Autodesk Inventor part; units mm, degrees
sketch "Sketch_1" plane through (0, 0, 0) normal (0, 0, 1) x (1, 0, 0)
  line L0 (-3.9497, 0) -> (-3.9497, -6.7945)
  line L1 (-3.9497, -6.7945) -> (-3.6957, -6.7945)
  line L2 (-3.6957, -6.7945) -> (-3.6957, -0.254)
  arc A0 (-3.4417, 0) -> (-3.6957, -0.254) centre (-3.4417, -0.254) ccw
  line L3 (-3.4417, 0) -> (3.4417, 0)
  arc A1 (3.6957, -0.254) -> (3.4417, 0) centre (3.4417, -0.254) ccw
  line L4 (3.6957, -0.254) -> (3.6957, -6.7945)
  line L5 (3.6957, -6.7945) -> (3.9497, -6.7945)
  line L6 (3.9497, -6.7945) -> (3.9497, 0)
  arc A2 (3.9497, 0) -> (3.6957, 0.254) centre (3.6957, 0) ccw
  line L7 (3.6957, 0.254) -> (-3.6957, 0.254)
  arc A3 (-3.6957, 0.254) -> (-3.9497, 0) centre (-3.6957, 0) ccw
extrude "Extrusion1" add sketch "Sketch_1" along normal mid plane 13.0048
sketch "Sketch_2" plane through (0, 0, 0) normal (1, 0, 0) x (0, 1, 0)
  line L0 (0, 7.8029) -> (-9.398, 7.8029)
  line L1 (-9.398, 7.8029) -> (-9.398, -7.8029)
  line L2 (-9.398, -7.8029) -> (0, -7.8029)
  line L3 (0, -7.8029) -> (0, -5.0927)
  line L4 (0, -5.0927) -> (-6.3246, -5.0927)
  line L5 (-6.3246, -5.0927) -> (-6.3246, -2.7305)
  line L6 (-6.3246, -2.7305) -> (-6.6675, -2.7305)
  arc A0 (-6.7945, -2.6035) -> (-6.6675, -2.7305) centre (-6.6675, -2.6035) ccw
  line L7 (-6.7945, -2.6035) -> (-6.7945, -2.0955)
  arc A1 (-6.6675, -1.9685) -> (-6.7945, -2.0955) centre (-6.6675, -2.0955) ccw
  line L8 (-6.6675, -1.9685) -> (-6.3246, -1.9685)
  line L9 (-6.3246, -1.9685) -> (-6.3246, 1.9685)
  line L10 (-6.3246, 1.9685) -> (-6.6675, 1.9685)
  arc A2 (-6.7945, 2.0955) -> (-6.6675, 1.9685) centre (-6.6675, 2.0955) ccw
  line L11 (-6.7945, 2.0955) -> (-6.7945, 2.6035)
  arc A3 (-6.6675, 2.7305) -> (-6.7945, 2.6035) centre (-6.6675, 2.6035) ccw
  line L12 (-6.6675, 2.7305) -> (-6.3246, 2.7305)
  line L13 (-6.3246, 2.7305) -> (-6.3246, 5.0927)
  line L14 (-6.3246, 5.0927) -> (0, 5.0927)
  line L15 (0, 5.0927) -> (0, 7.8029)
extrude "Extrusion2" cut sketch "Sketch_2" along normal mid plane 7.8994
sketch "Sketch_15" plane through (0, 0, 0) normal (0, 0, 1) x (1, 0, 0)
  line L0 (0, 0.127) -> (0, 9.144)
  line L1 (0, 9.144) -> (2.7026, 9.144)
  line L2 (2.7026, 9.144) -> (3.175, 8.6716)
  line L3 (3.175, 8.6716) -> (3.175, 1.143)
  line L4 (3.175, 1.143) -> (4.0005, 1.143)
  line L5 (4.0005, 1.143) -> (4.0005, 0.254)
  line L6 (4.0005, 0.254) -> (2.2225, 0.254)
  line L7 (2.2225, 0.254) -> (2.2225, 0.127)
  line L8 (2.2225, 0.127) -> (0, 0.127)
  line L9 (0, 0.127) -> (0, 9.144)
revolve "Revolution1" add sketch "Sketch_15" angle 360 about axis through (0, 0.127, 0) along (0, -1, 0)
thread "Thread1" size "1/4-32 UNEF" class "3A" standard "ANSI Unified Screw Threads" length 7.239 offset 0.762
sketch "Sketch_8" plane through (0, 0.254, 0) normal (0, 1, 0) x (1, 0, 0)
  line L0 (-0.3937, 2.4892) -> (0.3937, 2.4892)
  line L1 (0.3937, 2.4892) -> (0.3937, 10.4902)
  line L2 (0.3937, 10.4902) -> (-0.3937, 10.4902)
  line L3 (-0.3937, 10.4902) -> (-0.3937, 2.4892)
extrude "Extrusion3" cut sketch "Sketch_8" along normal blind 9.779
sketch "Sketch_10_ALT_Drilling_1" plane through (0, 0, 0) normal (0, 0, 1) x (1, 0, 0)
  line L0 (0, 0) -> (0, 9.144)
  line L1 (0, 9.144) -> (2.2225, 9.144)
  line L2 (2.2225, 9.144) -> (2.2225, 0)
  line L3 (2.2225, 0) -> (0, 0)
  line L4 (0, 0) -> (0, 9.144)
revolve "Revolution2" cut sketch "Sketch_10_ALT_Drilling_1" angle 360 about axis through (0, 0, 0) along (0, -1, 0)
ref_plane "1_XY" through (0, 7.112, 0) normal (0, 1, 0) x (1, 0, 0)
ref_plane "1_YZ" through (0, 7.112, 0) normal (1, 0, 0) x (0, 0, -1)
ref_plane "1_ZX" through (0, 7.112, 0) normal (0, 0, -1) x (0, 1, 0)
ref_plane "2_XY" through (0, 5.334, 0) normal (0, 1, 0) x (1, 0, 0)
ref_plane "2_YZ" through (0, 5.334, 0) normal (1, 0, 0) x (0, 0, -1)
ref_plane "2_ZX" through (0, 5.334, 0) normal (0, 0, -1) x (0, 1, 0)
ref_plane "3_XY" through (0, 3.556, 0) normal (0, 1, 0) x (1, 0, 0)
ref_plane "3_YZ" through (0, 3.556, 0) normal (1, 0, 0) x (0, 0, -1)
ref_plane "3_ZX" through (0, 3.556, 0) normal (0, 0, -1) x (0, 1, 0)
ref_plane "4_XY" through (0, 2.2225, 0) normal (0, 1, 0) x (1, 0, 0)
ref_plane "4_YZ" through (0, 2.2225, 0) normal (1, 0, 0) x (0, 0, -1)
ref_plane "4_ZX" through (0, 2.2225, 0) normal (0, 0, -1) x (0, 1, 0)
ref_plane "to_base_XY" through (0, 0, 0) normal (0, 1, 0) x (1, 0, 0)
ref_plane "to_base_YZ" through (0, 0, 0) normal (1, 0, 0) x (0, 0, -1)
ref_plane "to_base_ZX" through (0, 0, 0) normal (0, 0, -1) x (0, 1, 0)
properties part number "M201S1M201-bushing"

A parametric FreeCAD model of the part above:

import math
import FreeCAD as App
import Part
import Sketcher

V = App.Vector
Q = App.Units.Quantity

doc = App.newDocument("Part")
body = doc.addObject("PartDesign::Body", "Body")

sketch1 = body.newObject("Sketcher::SketchObject", "Sketch")
sketch1.AttachmentSupport = (doc.getObject("XY_Plane"), [""])
sketch1.MapMode = "FlatFace"
sketch1.addGeometry([
    Part.ArcOfCircle(Part.Circle(V(-3.6957, 0, 0), V(0, 0, 1), 0.254), math.radians(90), math.radians(180)),
    Part.LineSegment(V(-3.9497, 0, 0), V(-3.9497, -6.7945, 0)),
    Part.LineSegment(V(-3.9497, -6.7945, 0), V(-3.6957, -6.7945, 0)),
    Part.LineSegment(V(-3.6957, -6.7945, 0), V(-3.6957, -0.254, 0)),
    Part.ArcOfCircle(Part.Circle(V(-3.4417, -0.254, 0), V(0, 0, 1), 0.254), math.radians(90), math.radians(180)),
    Part.LineSegment(V(-3.4417, 0, 0), V(3.4417, 0, 0)),
    Part.ArcOfCircle(Part.Circle(V(3.4417, -0.254, 0), V(0, 0, 1), 0.254), math.radians(0), math.radians(90)),
    Part.LineSegment(V(3.6957, -0.254, 0), V(3.6957, -6.7945, 0)),
    Part.LineSegment(V(3.6957, -6.7945, 0), V(3.9497, -6.7945, 0)),
    Part.LineSegment(V(3.9497, -6.7945, 0), V(3.9497, 0, 0)),
    Part.ArcOfCircle(Part.Circle(V(3.6957, 0, 0), V(0, 0, 1), 0.254), math.radians(0), math.radians(90)),
    Part.LineSegment(V(3.6957, 0.254, 0), V(-3.6957, 0.254, 0)),
], False)
sketch1.addConstraint([
    Sketcher.Constraint("Tangent", 0, 2, 1, 1),
    Sketcher.Constraint("Coincident", 1, 2, 2, 1),
    Sketcher.Constraint("Coincident", 2, 2, 3, 1),
    Sketcher.Constraint("Tangent", 3, 2, 4, 2),
    Sketcher.Constraint("Tangent", 4, 1, 5, 1),
    Sketcher.Constraint("Tangent", 5, 2, 6, 2),
    Sketcher.Constraint("Tangent", 6, 1, 7, 1),
    Sketcher.Constraint("Coincident", 7, 2, 8, 1),
    Sketcher.Constraint("Coincident", 8, 2, 9, 1),
    Sketcher.Constraint("Tangent", 9, 2, 10, 1),
    Sketcher.Constraint("Tangent", 10, 2, 11, 1),
    Sketcher.Constraint("Tangent", 11, 2, 0, 1),
    Sketcher.Constraint("Vertical", 1),
    Sketcher.Constraint("Horizontal", 2),
    Sketcher.Constraint("Vertical", 3),
    Sketcher.Constraint("Horizontal", 5),
    Sketcher.Constraint("Vertical", 7),
    Sketcher.Constraint("Horizontal", 8),
    Sketcher.Constraint("Vertical", 9),
    Sketcher.Constraint("Horizontal", 11),
    Sketcher.Constraint("Equal", 0, 4),
    Sketcher.Constraint("Equal", 4, 6),
    Sketcher.Constraint("Equal", 6, 10),
    Sketcher.Constraint("Symmetric", 0, 3, 10, 3, -1, 1),
    Sketcher.Constraint("Symmetric", 4, 1, 5, 2, -1, 1),
    Sketcher.Constraint("Horizontal", 2, 2, 7, 2),
    Sketcher.Constraint("Vertical", 0, 3, 2, 2),
    Sketcher.Constraint("Radius", 0, Q("0.01 in")),
    Sketcher.Constraint("DistanceX", 5, 1, 5, 2, Q("0.271 in")),
    Sketcher.Constraint("DistanceY", 1, 2, 1, 1, Q("0.2675 in")),
])
pad1 = body.newObject("PartDesign::Pad", "Pad")
pad1.Profile = sketch1
pad1.Length = Q("0.512 in")
pad1.Midplane = True

sketch2 = body.newObject("Sketcher::SketchObject", "Sketch001")
sketch2.AttachmentSupport = (doc.getObject("YZ_Plane"), [""])
sketch2.MapMode = "FlatFace"
sketch2.addGeometry([
    Part.LineSegment(V(0, 5.0927, 0), V(0, 7.8029, 0)),
    Part.LineSegment(V(0, 7.8029, 0), V(-9.398, 7.8029, 0)),
    Part.LineSegment(V(-9.398, 7.8029, 0), V(-9.398, -7.8029, 0)),
    Part.LineSegment(V(-9.398, -7.8029, 0), V(0, -7.8029, 0)),
    Part.LineSegment(V(0, -7.8029, 0), V(0, -5.0927, 0)),
    Part.LineSegment(V(0, -5.0927, 0), V(-6.3246, -5.0927, 0)),
    Part.LineSegment(V(-6.3246, -5.0927, 0), V(-6.3246, -2.7305, 0)),
    Part.LineSegment(V(-6.3246, -2.7305, 0), V(-6.6675, -2.7305, 0)),
    Part.ArcOfCircle(Part.Circle(V(-6.6675, -2.6035, 0), V(0, 0, 1), 0.127), math.radians(180), math.radians(270)),
    Part.LineSegment(V(-6.7945, -2.6035, 0), V(-6.7945, -2.0955, 0)),
    Part.ArcOfCircle(Part.Circle(V(-6.6675, -2.0955, 0), V(0, 0, 1), 0.127), math.radians(90), math.radians(180)),
    Part.LineSegment(V(-6.6675, -1.9685, 0), V(-6.3246, -1.9685, 0)),
    Part.LineSegment(V(-6.3246, -1.9685, 0), V(-6.3246, 1.9685, 0)),
    Part.LineSegment(V(-6.3246, 1.9685, 0), V(-6.6675, 1.9685, 0)),
    Part.ArcOfCircle(Part.Circle(V(-6.6675, 2.0955, 0), V(0, 0, 1), 0.127), math.radians(180), math.radians(270)),
    Part.LineSegment(V(-6.7945, 2.0955, 0), V(-6.7945, 2.6035, 0)),
    Part.ArcOfCircle(Part.Circle(V(-6.6675, 2.6035, 0), V(0, 0, 1), 0.127), math.radians(90), math.radians(180)),
    Part.LineSegment(V(-6.6675, 2.7305, 0), V(-6.3246, 2.7305, 0)),
    Part.LineSegment(V(-6.3246, 2.7305, 0), V(-6.3246, 5.0927, 0)),
    Part.LineSegment(V(-6.3246, 5.0927, 0), V(0, 5.0927, 0)),
], False)
sketch2.addConstraint([
    Sketcher.Constraint("Coincident", 0, 2, 1, 1),
    Sketcher.Constraint("Coincident", 1, 2, 2, 1),
    Sketcher.Constraint("Coincident", 2, 2, 3, 1),
    Sketcher.Constraint("Coincident", 3, 2, 4, 1),
    Sketcher.Constraint("Coincident", 4, 2, 5, 1),
    Sketcher.Constraint("Coincident", 5, 2, 6, 1),
    Sketcher.Constraint("Coincident", 6, 2, 7, 1),
    Sketcher.Constraint("Tangent", 7, 2, 8, 2),
    Sketcher.Constraint("Tangent", 8, 1, 9, 1),
    Sketcher.Constraint("Tangent", 9, 2, 10, 2),
    Sketcher.Constraint("Tangent", 10, 1, 11, 1),
    Sketcher.Constraint("Coincident", 11, 2, 12, 1),
    Sketcher.Constraint("Coincident", 12, 2, 13, 1),
    Sketcher.Constraint("Tangent", 13, 2, 14, 2),
    Sketcher.Constraint("Tangent", 14, 1, 15, 1),
    Sketcher.Constraint("Tangent", 15, 2, 16, 2),
    Sketcher.Constraint("Tangent", 16, 1, 17, 1),
    Sketcher.Constraint("Coincident", 17, 2, 18, 1),
    Sketcher.Constraint("Coincident", 18, 2, 19, 1),
    Sketcher.Constraint("Coincident", 19, 2, 0, 1),
    Sketcher.Constraint("Vertical", 0),
    Sketcher.Constraint("Horizontal", 1),
    Sketcher.Constraint("Vertical", 2),
    Sketcher.Constraint("Horizontal", 3),
    Sketcher.Constraint("Vertical", 4),
    Sketcher.Constraint("Horizontal", 5),
    Sketcher.Constraint("Vertical", 6),
    Sketcher.Constraint("Horizontal", 7),
    Sketcher.Constraint("Vertical", 9),
    Sketcher.Constraint("Horizontal", 11),
    Sketcher.Constraint("Vertical", 12),
    Sketcher.Constraint("Horizontal", 13),
    Sketcher.Constraint("Vertical", 15),
    Sketcher.Constraint("Horizontal", 17),
    Sketcher.Constraint("Vertical", 18),
    Sketcher.Constraint("Horizontal", 19),
    Sketcher.Constraint("Equal", 8, 10),
    Sketcher.Constraint("Equal", 10, 14),
    Sketcher.Constraint("Equal", 14, 16),
    Sketcher.Constraint("Symmetric", 0, 2, 3, 2, -1, 1),
    Sketcher.Constraint("Symmetric", 10, 3, 14, 3, -1),
    Sketcher.Constraint("Symmetric", 6, 2, 17, 2, -1),
    Sketcher.Constraint("Symmetric", 4, 2, 19, 2, -1),
    Sketcher.Constraint("Vertical", 6, 2, 11, 2),
    Sketcher.Constraint("Radius", 8, Q("0.005 in")),
    Sketcher.Constraint("DistanceX", 1, 2, 1, 1, Q("0.37 in")),
    Sketcher.Constraint("DistanceY", 9, 1, 9, 2, Q("0.02 in")),
    Sketcher.Constraint("DistanceX", 5, 2, 5, 1, Q("0.249 in")),
    Sketcher.Constraint("DistanceY", 6, 1, 6, 2, Q("0.093 in")),
    Sketcher.Constraint("DistanceY", 12, 1, 12, 2, Q("0.155 in")),
    Sketcher.Constraint("DistanceX", 7, 2, 7, 1, Q("0.0135 in")),
    Sketcher.Constraint("DistanceY", 0, 1, 0, 2, Q("0.1067 in")),
])
pocket1 = body.newObject("PartDesign::Pocket", "Pocket")
pocket1.Profile = sketch2
pocket1.Length = Q("0.311 in")
pocket1.Midplane = True

sketch3 = body.newObject("Sketcher::SketchObject", "Sketch002")
sketch3.AttachmentSupport = (doc.getObject("XY_Plane"), [""])
sketch3.MapMode = "FlatFace"
sketch3.addGeometry([
    Part.LineSegment(V(0, 9.144, 0), V(0, 0.127, 0)),
    Part.LineSegment(V(0, 0.127, 0), V(2.2225, 0.127, 0)),
    Part.LineSegment(V(2.2225, 0.127, 0), V(2.2225, 0.254, 0)),
    Part.LineSegment(V(2.2225, 0.254, 0), V(4.0005, 0.254, 0)),
    Part.LineSegment(V(4.0005, 0.254, 0), V(4.0005, 1.143, 0)),
    Part.LineSegment(V(4.0005, 1.143, 0), V(3.175, 1.143, 0)),
    Part.LineSegment(V(3.175, 1.143, 0), V(3.175, 8.6716, 0)),
    Part.LineSegment(V(3.175, 8.6716, 0), V(2.7026, 9.144, 0)),
    Part.LineSegment(V(2.7026, 9.144, 0), V(0, 9.144, 0)),
], False)
sketch3.addConstraint([
    Sketcher.Constraint("Coincident", 0, 2, 1, 1),
    Sketcher.Constraint("Coincident", 1, 2, 2, 1),
    Sketcher.Constraint("Coincident", 2, 2, 3, 1),
    Sketcher.Constraint("Coincident", 3, 2, 4, 1),
    Sketcher.Constraint("Coincident", 4, 2, 5, 1),
    Sketcher.Constraint("Coincident", 5, 2, 6, 1),
    Sketcher.Constraint("Coincident", 6, 2, 7, 1),
    Sketcher.Constraint("Coincident", 7, 2, 8, 1),
    Sketcher.Constraint("Coincident", 8, 2, 0, 1),
    Sketcher.Constraint("Vertical", 0),
    Sketcher.Constraint("Horizontal", 1),
    Sketcher.Constraint("Vertical", 2),
    Sketcher.Constraint("Horizontal", 3),
    Sketcher.Constraint("Vertical", 4),
    Sketcher.Constraint("Horizontal", 5),
    Sketcher.Constraint("Vertical", 6),
    Sketcher.Constraint("Horizontal", 8),
    Sketcher.Constraint("PointOnObject", 0, 2, -2),
    Sketcher.Constraint("Angle", 7, Q("135 deg")),
    Sketcher.Constraint("DistanceX", 3, 1, 3, 2, Q("0.07 in")),
    Sketcher.Constraint("DistanceY", 0, 2, 0, 1, Q("0.355 in")),
    Sketcher.Constraint("DistanceY", 2, 1, 2, 2, Q("0.005 in")),
    Sketcher.Constraint("DistanceY", 4, 1, 4, 2, Q("0.035 in")),
    Sketcher.Constraint("DistanceY", -1, 1, 2, 2, Q("0.01 in")),
    Sketcher.Constraint("DistanceX", 1, 1, 1, 2, Q("0.0875 in")),
    Sketcher.Constraint("DistanceX", 5, 2, 5, 1, Q("0.0325 in")),
    Sketcher.Constraint("DistanceX", 8, 2, 8, 1, Q("0.1064 in")),
])
revolution = body.newObject("PartDesign::Revolution", "Revolution")
revolution.Profile = sketch3
revolution.ReferenceAxis = (sketch3, ["V_Axis"])
revolution.Angle = 360

sketch4 = body.newObject("Sketcher::SketchObject", "Sketch003")
sketch4.AttachmentSupport = (doc.getObject("XZ_Plane"), [""])
sketch4.MapMode = "FlatFace"
sketch4.AttachmentOffset = App.Placement(V(0, 0, -0.01 * 25.4), App.Rotation())
sketch4.addGeometry([
    Part.LineSegment(V(-0.3937, -10.4902, 0), V(-0.3937, -2.4892, 0)),
    Part.LineSegment(V(-0.3937, -2.4892, 0), V(0.3937, -2.4892, 0)),
    Part.LineSegment(V(0.3937, -2.4892, 0), V(0.3937, -10.4902, 0)),
    Part.LineSegment(V(0.3937, -10.4902, 0), V(-0.3937, -10.4902, 0)),
], False)
sketch4.addConstraint([
    Sketcher.Constraint("Coincident", 0, 2, 1, 1),
    Sketcher.Constraint("Coincident", 1, 2, 2, 1),
    Sketcher.Constraint("Coincident", 2, 2, 3, 1),
    Sketcher.Constraint("Coincident", 3, 2, 0, 1),
    Sketcher.Constraint("Vertical", 0),
    Sketcher.Constraint("Horizontal", 1),
    Sketcher.Constraint("Vertical", 2),
    Sketcher.Constraint("Horizontal", 3),
    Sketcher.Constraint("DistanceX", 1, 1, 1, 2, Q("0.031 in")),
    Sketcher.Constraint("DistanceY", 0, 1, 0, 2, Q("0.315 in")),
    Sketcher.Constraint("DistanceY", 0, 2, -1, 1, Q("0.098 in")),
    Sketcher.Constraint("DistanceX", 0, 2, -1, 1, Q("0.0155 in")),
])
pocket2 = body.newObject("PartDesign::Pocket", "Pocket001")
pocket2.Profile = sketch4
pocket2.Length = Q("0.385 in")

sketch5 = body.newObject("Sketcher::SketchObject", "Sketch004")
sketch5.AttachmentSupport = (doc.getObject("XY_Plane"), [""])
sketch5.MapMode = "FlatFace"
sketch5.addGeometry([
    Part.LineSegment(V(0, 9.144, 0), V(0, 0, 0)),
    Part.LineSegment(V(0, 0, 0), V(2.2225, 0, 0)),
    Part.LineSegment(V(2.2225, 0, 0), V(2.2225, 9.144, 0)),
    Part.LineSegment(V(2.2225, 9.144, 0), V(0, 9.144, 0)),
], False)
sketch5.addConstraint([
    Sketcher.Constraint("Coincident", 0, 2, 1, 1),
    Sketcher.Constraint("Coincident", 1, 2, 2, 1),
    Sketcher.Constraint("Coincident", 2, 2, 3, 1),
    Sketcher.Constraint("Coincident", 3, 2, 0, 1),
    Sketcher.Constraint("Vertical", 0),
    Sketcher.Constraint("Horizontal", 1),
    Sketcher.Constraint("Vertical", 2),
    Sketcher.Constraint("Horizontal", 3),
    Sketcher.Constraint("Coincident", 0, 2, -1, 1),
    Sketcher.Constraint("DistanceY", 0, 2, 0, 1, Q("0.36 in")),
    Sketcher.Constraint("DistanceX", 1, 1, 1, 2, Q("0.0875 in")),
])
groove = body.newObject("PartDesign::Groove", "Groove")
groove.Profile = sketch5
groove.ReferenceAxis = (sketch5, ["V_Axis"])
groove.Angle = 360

doc.recompute()
